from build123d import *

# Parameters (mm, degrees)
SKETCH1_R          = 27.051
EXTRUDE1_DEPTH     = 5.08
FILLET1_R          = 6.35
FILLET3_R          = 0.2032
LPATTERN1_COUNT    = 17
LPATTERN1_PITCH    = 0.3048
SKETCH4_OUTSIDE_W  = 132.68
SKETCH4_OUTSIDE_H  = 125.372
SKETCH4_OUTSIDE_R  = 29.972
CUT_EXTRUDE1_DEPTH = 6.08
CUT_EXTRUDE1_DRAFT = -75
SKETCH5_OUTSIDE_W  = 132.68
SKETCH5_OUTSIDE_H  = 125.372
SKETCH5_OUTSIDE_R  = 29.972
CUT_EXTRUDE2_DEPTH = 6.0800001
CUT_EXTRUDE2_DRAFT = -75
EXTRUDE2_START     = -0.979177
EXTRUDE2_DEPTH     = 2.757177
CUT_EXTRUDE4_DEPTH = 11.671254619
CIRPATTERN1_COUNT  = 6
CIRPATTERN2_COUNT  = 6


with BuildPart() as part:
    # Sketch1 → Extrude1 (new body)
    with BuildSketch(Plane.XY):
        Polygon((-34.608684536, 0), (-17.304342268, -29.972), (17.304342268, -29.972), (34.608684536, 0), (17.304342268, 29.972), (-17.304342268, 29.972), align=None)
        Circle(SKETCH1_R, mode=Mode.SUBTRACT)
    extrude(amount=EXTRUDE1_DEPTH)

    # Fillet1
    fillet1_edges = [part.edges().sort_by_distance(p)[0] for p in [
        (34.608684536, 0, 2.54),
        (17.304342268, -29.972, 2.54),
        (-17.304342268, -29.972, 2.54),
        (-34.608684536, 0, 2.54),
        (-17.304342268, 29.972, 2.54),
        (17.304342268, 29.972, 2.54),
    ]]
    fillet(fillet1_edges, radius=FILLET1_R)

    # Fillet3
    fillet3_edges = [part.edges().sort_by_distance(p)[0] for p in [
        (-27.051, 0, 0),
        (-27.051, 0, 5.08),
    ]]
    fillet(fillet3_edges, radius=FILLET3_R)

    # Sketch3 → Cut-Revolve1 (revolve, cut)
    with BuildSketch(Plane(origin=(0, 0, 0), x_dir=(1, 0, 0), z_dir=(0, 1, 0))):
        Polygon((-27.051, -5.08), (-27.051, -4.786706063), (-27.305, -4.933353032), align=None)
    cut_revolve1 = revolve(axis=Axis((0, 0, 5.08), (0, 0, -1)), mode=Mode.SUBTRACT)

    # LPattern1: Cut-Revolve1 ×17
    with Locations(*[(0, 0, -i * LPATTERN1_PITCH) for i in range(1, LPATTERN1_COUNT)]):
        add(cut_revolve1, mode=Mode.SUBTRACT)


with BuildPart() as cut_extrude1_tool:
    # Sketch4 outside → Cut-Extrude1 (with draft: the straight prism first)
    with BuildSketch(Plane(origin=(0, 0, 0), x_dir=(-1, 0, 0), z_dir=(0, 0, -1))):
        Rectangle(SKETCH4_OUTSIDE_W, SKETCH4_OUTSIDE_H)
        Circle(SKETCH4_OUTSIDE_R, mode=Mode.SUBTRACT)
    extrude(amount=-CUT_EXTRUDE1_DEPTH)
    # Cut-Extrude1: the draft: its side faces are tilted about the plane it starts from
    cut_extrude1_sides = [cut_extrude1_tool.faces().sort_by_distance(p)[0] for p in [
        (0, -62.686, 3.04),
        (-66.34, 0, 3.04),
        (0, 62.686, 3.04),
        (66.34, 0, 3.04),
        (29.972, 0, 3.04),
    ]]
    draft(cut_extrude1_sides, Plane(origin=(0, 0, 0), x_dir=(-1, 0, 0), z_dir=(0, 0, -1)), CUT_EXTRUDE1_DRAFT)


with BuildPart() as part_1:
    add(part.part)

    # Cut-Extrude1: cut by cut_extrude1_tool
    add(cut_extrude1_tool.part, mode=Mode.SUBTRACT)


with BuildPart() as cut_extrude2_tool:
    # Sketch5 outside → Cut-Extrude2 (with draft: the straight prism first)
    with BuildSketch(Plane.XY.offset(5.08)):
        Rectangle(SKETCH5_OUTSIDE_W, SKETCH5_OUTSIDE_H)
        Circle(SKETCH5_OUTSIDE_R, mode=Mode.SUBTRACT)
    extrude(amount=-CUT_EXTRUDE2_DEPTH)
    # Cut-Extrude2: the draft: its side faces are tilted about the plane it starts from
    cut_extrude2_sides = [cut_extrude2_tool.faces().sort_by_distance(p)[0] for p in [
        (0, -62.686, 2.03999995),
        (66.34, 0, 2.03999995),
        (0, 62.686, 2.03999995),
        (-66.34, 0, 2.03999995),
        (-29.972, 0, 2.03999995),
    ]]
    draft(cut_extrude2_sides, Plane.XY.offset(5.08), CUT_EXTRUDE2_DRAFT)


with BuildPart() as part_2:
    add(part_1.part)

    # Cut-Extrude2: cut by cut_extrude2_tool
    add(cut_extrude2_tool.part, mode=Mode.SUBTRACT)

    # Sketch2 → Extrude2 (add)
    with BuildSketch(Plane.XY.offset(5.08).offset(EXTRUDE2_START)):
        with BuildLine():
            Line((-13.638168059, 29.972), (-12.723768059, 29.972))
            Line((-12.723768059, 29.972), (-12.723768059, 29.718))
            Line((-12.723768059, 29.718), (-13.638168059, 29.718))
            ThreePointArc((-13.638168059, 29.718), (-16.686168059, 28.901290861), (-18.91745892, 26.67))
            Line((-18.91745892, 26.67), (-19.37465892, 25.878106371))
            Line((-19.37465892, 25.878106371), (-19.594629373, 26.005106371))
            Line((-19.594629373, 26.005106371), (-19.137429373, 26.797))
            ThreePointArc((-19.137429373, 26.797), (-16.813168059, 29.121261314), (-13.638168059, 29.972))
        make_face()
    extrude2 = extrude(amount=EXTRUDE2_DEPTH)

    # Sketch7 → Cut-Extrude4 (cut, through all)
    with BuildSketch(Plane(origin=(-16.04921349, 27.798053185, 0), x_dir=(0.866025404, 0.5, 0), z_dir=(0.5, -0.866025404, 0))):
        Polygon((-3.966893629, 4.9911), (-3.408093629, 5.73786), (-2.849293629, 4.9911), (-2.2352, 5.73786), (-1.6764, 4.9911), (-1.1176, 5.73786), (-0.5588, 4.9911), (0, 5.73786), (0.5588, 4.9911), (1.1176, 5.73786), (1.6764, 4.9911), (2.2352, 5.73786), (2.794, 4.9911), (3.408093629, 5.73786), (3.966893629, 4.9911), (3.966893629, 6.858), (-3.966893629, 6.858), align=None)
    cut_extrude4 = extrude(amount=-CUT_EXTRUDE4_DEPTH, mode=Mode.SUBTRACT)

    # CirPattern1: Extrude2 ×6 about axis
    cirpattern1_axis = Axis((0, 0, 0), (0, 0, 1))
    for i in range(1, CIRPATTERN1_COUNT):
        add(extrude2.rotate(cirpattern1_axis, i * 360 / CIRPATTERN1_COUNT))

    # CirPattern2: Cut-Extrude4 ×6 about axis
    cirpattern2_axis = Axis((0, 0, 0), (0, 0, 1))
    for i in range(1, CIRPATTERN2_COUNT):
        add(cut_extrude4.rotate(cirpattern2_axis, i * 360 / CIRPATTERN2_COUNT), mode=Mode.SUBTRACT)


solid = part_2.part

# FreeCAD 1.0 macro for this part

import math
import FreeCAD as App
import Part
import Sketcher
from FreeCAD import Vector
Q = App.Units.Quantity


def edges_at(feature, points):
    """Names of the edges that pass closest to the given points."""
    edges = feature.Shape.Edges
    near = lambda p: min(range(len(edges)), key=lambda i: edges[i].distToShape(Part.Vertex(*p))[0])
    return sorted({f"Edge{near(p) + 1}" for p in points})


def faces_at(feature, points):
    """Names of the faces that lie closest to the given points."""
    faces = feature.Shape.Faces
    near = lambda p: min(range(len(faces)), key=lambda i: faces[i].distToShape(Part.Vertex(*p))[0])
    return sorted({f"Face{near(p) + 1}" for p in points})


def add_polygon(sketch, points):
    """Adds a closed chain of lines whose ends are joined by coincident constraints."""
    first, n = sketch.GeometryCount, len(points)
    for a, b in zip(points, points[1:] + points[:1]):
        sketch.addGeometry(Part.LineSegment(App.Vector(*a, 0), App.Vector(*b, 0)), False)
    for i in range(n):
        sketch.addConstraint(Sketcher.Constraint("Coincident", first + i, 2, first + (i + 1) % n, 1))

doc = App.newDocument("Part")
body = doc.addObject("PartDesign::Body", "Body")

sketch1 = body.newObject("Sketcher::SketchObject", "Sketch")
sketch1.AttachmentSupport = (doc.getObject("XY_Plane"), [""])
sketch1.MapMode = "FlatFace"
add_polygon(sketch1, [(-35, 0), (-17, -30), (17, -30), (35, 0), (17, 30), (-17, 30)])
sketch1.addGeometry(Part.Circle(Vector(0, 0, 0), Vector(0, 0, 1), 27), False)
sketch1.addConstraint(Sketcher.Constraint("Horizontal", 1))
sketch1.addConstraint(Sketcher.Constraint("Horizontal", 4))
sketch1.addConstraint(Sketcher.Constraint("Coincident", 6, 3, -1, 1))
sketch1.addConstraint(Sketcher.Constraint("Symmetric", 0, 2, 3, 2, -1, 1))
sketch1.addConstraint(Sketcher.Constraint("Symmetric", 2, 2, 5, 2, -1, 1))
sketch1.addConstraint(Sketcher.Constraint("PointOnObject", 2, 2, -1))
sketch1.addConstraint(Sketcher.Constraint("Parallel", 2, 5))
sketch1.addConstraint(Sketcher.Constraint("Vertical", 1, 2, 3, 2))
sketch1.addConstraint(Sketcher.Constraint("Diameter", 6, Q("2.13 in")))
sketch1.addConstraint(Sketcher.Constraint("Angle", 0, Q("-60 deg")))
sketch1.addConstraint(Sketcher.Constraint("DistanceY", 0, 2, -1, 1, Q("1.18 in")))
sketch1.addConstraint(Sketcher.Constraint("DistanceX", 1, 1, 1, 2, Q("34.608685 mm")))
pad1 = body.newObject("PartDesign::Pad", "Pad")
pad1.Profile = sketch1
pad1.Length = Q("0.2 in")
doc.recompute()

fillet = body.newObject("PartDesign::Fillet", "Fillet")
fillet.Base = (pad1, edges_at(pad1, [
    (34.609, 0, 2.54),
    (17.304, -29.972, 2.54),
    (-17.304, -29.972, 2.54),
    (-34.609, 0, 2.54),
    (-17.304, 29.972, 2.54),
    (17.304, 29.972, 2.54),
]))
fillet.Radius = Q("0.25 in")
doc.recompute()

fillet2 = body.newObject("PartDesign::Fillet", "Fillet001")
fillet2.Base = (fillet, edges_at(fillet, [(-27.051, 0, 0), (-27.051, 0, 5.08)]))
fillet2.Radius = Q("0.008 in")

sketch2 = body.newObject("Sketcher::SketchObject", "Sketch001")
sketch2.AttachmentSupport = (doc.getObject("XZ_Plane"), [""])
sketch2.MapMode = "FlatFace"
add_polygon(sketch2, [(-27.05, 5.08), (-27.05, 4.79), (-27.3, 4.93)])
sketch2.addConstraint(Sketcher.Constraint("Vertical", 0))
sketch2.addConstraint(Sketcher.Constraint("Equal", 1, 2))
sketch2.addConstraint(Sketcher.Constraint("Angle", 1, Q("150 deg")))
sketch2.addConstraint(Sketcher.Constraint("DistanceY", -1, 1, 2, 2, Q("0.2 in")))
sketch2.addConstraint(Sketcher.Constraint("DistanceX", 1, 2, 0, 2, Q("0.01 in")))
sketch2.addConstraint(Sketcher.Constraint("DistanceX", 0, 2, -1, 1, Q("1.065 in")))
groove = body.newObject("PartDesign::Groove", "Groove")
groove.Profile = sketch2
groove.ReferenceAxis = (sketch2, ["V_Axis"])
groove.Angle = 360
doc.recompute()

linearpattern = body.newObject("PartDesign::LinearPattern", "LinearPattern")
linearpattern.Originals = [groove]
linearpattern.Direction = (doc.getObject("Z_Axis"), [""])
linearpattern.Mode = "offset"
linearpattern.Offset = Q("0.012 in")
linearpattern.Occurrences = 17
linearpattern.Reversed = True
body.Tip = linearpattern
body2 = doc.addObject("PartDesign::Body", "Body001")

sketch3 = body2.newObject("Sketcher::SketchObject", "Sketch002")
sketch3.AttachmentSupport = (doc.getObject("XY_Plane001"), [""])
sketch3.MapMode = "FlatFace"
add_polygon(sketch3, [(66, 63), (66, -63), (-66, -63), (-66, 63)])
sketch3.addGeometry(Part.Circle(Vector(0, 0, 0), Vector(0, 0, 1), 30), False)
sketch3.addConstraint(Sketcher.Constraint("Vertical", 0))
sketch3.addConstraint(Sketcher.Constraint("Horizontal", 1))
sketch3.addConstraint(Sketcher.Constraint("Vertical", 2))
sketch3.addConstraint(Sketcher.Constraint("Horizontal", 3))
sketch3.addConstraint(Sketcher.Constraint("Coincident", 4, 3, -1, 1))
sketch3.addConstraint(Sketcher.Constraint("Symmetric", 0, 2, 2, 2, -1, 1))
sketch3.addConstraint(Sketcher.Constraint("Diameter", 4, Q("2.36 in")))
sketch3.addConstraint(Sketcher.Constraint("DistanceX", 1, 2, 1, 1, Q("132.68 mm")))
sketch3.addConstraint(Sketcher.Constraint("DistanceY", 0, 2, 0, 1, Q("125.372 mm")))
pad2 = body2.newObject("PartDesign::Pad", "Pad001")
pad2.Profile = sketch3
pad2.Length = 6.08
doc.recompute()

draft = body2.newObject("PartDesign::Draft", "Draft")
draft.Base = (pad2, faces_at(pad2, [
    (0, -62.686, 3.04),
    (-66.34, 0, 3.04),
    (0, 62.686, 3.04),
    (66.34, 0, 3.04),
    (29.972, 0, 3.04),
]))
draft.NeutralPlane = (doc.getObject("XY_Plane001"), [""])
draft.Angle = 75
draft.Reversed = False
doc.recompute()

boolean = body.newObject("PartDesign::Boolean", "Boolean")
boolean.Type = "Cut"
boolean.addObjects([body2])
body3 = doc.addObject("PartDesign::Body", "Body002")

sketch4 = body3.newObject("Sketcher::SketchObject", "Sketch003")
sketch4.AttachmentSupport = (doc.getObject("XY_Plane002"), [""])
sketch4.MapMode = "FlatFace"
sketch4.AttachmentOffset = App.Placement(Vector(0, 0, 0.2 * 25.4), App.Rotation())
add_polygon(sketch4, [(-66, 63), (-66, -63), (66, -63), (66, 63)])
sketch4.addGeometry(Part.Circle(Vector(0, 0, 0), Vector(0, 0, 1), 30), False)
sketch4.addConstraint(Sketcher.Constraint("Vertical", 0))
sketch4.addConstraint(Sketcher.Constraint("Horizontal", 1))
sketch4.addConstraint(Sketcher.Constraint("Vertical", 2))
sketch4.addConstraint(Sketcher.Constraint("Horizontal", 3))
sketch4.addConstraint(Sketcher.Constraint("Coincident", 4, 3, -1, 1))
sketch4.addConstraint(Sketcher.Constraint("Symmetric", 0, 2, 2, 2, -1, 1))
sketch4.addConstraint(Sketcher.Constraint("Diameter", 4, Q("2.36 in")))
sketch4.addConstraint(Sketcher.Constraint("DistanceX", 1, 1, 1, 2, Q("132.68 mm")))
sketch4.addConstraint(Sketcher.Constraint("DistanceY", 0, 2, 0, 1, Q("125.372 mm")))
pad3 = body3.newObject("PartDesign::Pad", "Pad002")
pad3.Profile = sketch4
pad3.Length = 6.08
pad3.Reversed = True
doc.recompute()

datumplane = body3.newObject("PartDesign::Plane", "DatumPlane")
datumplane.AttachmentSupport = (doc.getObject("XY_Plane002"), [""])
datumplane.MapMode = "FlatFace"
datumplane.AttachmentOffset = App.Placement(Vector(0, 0, 0.2 * 25.4), App.Rotation())
draft2 = body3.newObject("PartDesign::Draft", "Draft001")
draft2.Base = (pad3, faces_at(pad3, [
    (0, -62.686, 2.04),
    (66.34, 0, 2.04),
    (0, 62.686, 2.04),
    (-66.34, 0, 2.04),
    (-29.972, 0, 2.04),
]))
draft2.NeutralPlane = (datumplane, [""])
draft2.Angle = 75
draft2.Reversed = True
doc.recompute()

boolean2 = body.newObject("PartDesign::Boolean", "Boolean001")
boolean2.Type = "Cut"
boolean2.addObjects([body3])

sketch5 = body.newObject("Sketcher::SketchObject", "Sketch004")
sketch5.AttachmentSupport = (doc.getObject("XY_Plane"), [""])
sketch5.MapMode = "FlatFace"
sketch5.AttachmentOffset = App.Placement(Vector(0, 0, 4.100823), App.Rotation())
sketch5.addGeometry(Part.LineSegment(Vector(-12.72, 29.97, 0), Vector(-13.64, 29.97, 0)), False)
sketch5.addGeometry(Part.ArcOfCircle(Part.Circle(Vector(-13.64, 23.62, 0), Vector(0, 0, 1), 6.35), math.radians(90), math.radians(150)), False)
sketch5.addGeometry(Part.LineSegment(Vector(-19.14, 26.8, 0), Vector(-19.59, 26.01, 0)), False)
sketch5.addGeometry(Part.LineSegment(Vector(-19.59, 26.01, 0), Vector(-19.37, 25.88, 0)), False)
sketch5.addGeometry(Part.LineSegment(Vector(-19.37, 25.88, 0), Vector(-18.92, 26.67, 0)), False)
sketch5.addGeometry(Part.ArcOfCircle(Part.Circle(Vector(-13.64, 23.62, 0), Vector(0, 0, 1), 6.1), math.radians(90), math.radians(150)), False)
sketch5.addGeometry(Part.LineSegment(Vector(-13.64, 29.72, 0), Vector(-12.72, 29.72, 0)), False)
sketch5.addGeometry(Part.LineSegment(Vector(-12.72, 29.72, 0), Vector(-12.72, 29.97, 0)), False)
sketch5.addConstraint(Sketcher.Constraint("Tangent", 0, 2, 1, 1))
sketch5.addConstraint(Sketcher.Constraint("Tangent", 1, 2, 2, 1))
sketch5.addConstraint(Sketcher.Constraint("Coincident", 2, 2, 3, 1))
sketch5.addConstraint(Sketcher.Constraint("Coincident", 3, 2, 4, 1))
sketch5.addConstraint(Sketcher.Constraint("Tangent", 4, 2, 5, 2))
sketch5.addConstraint(Sketcher.Constraint("Tangent", 5, 1, 6, 1))
sketch5.addConstraint(Sketcher.Constraint("Coincident", 6, 2, 7, 1))
sketch5.addConstraint(Sketcher.Constraint("Coincident", 7, 2, 0, 1))
sketch5.addConstraint(Sketcher.Constraint("Horizontal", 0))
sketch5.addConstraint(Sketcher.Constraint("Horizontal", 6))
sketch5.addConstraint(Sketcher.Constraint("Vertical", 7))
sketch5.addConstraint(Sketcher.Constraint("Coincident", 5, 3, 1, 3))
sketch5.addConstraint(Sketcher.Constraint("Perpendicular", 2, 3))
sketch5.addConstraint(Sketcher.Constraint("Perpendicular", 3, 4))
sketch5.addConstraint(Sketcher.Constraint("Radius", 1, Q("0.25 in")))
sketch5.addConstraint(Sketcher.Constraint("Radius", 5, Q("0.24 in")))
sketch5.addConstraint(Sketcher.Constraint("Angle", 2, Q("-120 deg")))
sketch5.addConstraint(Sketcher.Constraint("DistanceX", 0, 2, 0, 1, Q("0.036 in")))
sketch5.addConstraint(Sketcher.Constraint("DistanceY", -1, 1, 1, 3, Q("0.93 in")))
sketch5.addConstraint(Sketcher.Constraint("Distance", 2, Q("0.036 in")))
sketch5.addConstraint(Sketcher.Constraint("DistanceX", 1, 3, -1, 1, Q("13.638168 mm")))
pad4 = body.newObject("PartDesign::Pad", "Pad003")
pad4.Profile = sketch5
pad4.Length = 2.757177

sketch6 = body.newObject("Sketcher::SketchObject", "Sketch005")
sketch6.Placement = App.Placement(Vector(-16.049213, 27.798053, 0), App.Rotation(Vector(0.866025404, 0.5, 0), Vector(0, 0, 1), Vector(0.5, -0.866025404, 0), "ZXY"))
add_polygon(sketch6, [(-4, 5), (-3.4, 5.7), (-2.8, 5), (-2.2, 5.7), (-1.7, 5), (-1.1, 5.7), (-0.6, 5), (0, 5.7), (0.6, 5), (1.1, 5.7), (1.7, 5), (2.2, 5.7), (2.8, 5), (3.4, 5.7), (4, 5), (4, 6.9), (-4, 6.9)])
sketch6.addConstraint(Sketcher.Constraint("Vertical", 14))
sketch6.addConstraint(Sketcher.Constraint("Horizontal", 15))
sketch6.addConstraint(Sketcher.Constraint("Vertical", 16))
sketch6.addConstraint(Sketcher.Constraint("Symmetric", 5, 2, 7, 2, -2))
sketch6.addConstraint(Sketcher.Constraint("Symmetric", 4, 2, 8, 2, -2))
sketch6.addConstraint(Sketcher.Constraint("Symmetric", 3, 2, 9, 2, -2))
sketch6.addConstraint(Sketcher.Constraint("Symmetric", 2, 2, 10, 2, -2))
sketch6.addConstraint(Sketcher.Constraint("Symmetric", 0, 2, 12, 2, -2))
sketch6.addConstraint(Sketcher.Constraint("Symmetric", 13, 2, 16, 2, -2))
sketch6.addConstraint(Sketcher.Constraint("PointOnObject", 6, 2, -2))
sketch6.addConstraint(Sketcher.Constraint("Parallel", 1, 3))
sketch6.addConstraint(Sketcher.Constraint("Parallel", 0, 4))
sketch6.addConstraint(Sketcher.Constraint("Parallel", 3, 5))
sketch6.addConstraint(Sketcher.Constraint("Parallel", 4, 6))
sketch6.addConstraint(Sketcher.Constraint("Parallel", 5, 7))
sketch6.addConstraint(Sketcher.Constraint("Parallel", 9, 11))
sketch6.addConstraint(Sketcher.Constraint("Parallel", 2, 12))
sketch6.addConstraint(Sketcher.Constraint("Horizontal", 0, 2, 2, 2))
sketch6.addConstraint(Sketcher.Constraint("Horizontal", 1, 2, 3, 2))
sketch6.addConstraint(Sketcher.Constraint("Horizontal", 2, 2, 4, 2))
sketch6.addConstraint(Sketcher.Constraint("Horizontal", 3, 2, 5, 2))
sketch6.addConstraint(Sketcher.Constraint("Horizontal", 4, 2, 6, 2))
sketch6.addConstraint(Sketcher.Constraint("Horizontal", 11, 2, 13, 2))
sketch6.addConstraint(Sketcher.Constraint("DistanceX", -1, 1, 11, 2, Q("0.11 in")))
sketch6.addConstraint(Sketcher.Constraint("DistanceY", -1, 1, 14, 2, Q("0.27 in")))
sketch6.addConstraint(Sketcher.Constraint("DistanceY", 14, 1, 14, 2, Q("0.0735 in")))
sketch6.addConstraint(Sketcher.Constraint("DistanceY", -1, 1, 0, 2, Q("0.2259 in")))
sketch6.addConstraint(Sketcher.Constraint("Distance", 2, Q("0.966831 mm")))
pocket1 = body.newObject("PartDesign::Pocket", "Pocket")
pocket1.Profile = sketch6
pocket1.Type = "ThroughAll"
doc.recompute()

polarpattern = body.newObject("PartDesign::PolarPattern", "PolarPattern")
polarpattern.Originals = [pad4]
polarpattern.Axis = (doc.getObject("Z_Axis"), [""])
polarpattern.Angle = 360
polarpattern.Occurrences = 6
body.Tip = polarpattern
doc.recompute()

polarpattern2 = body.newObject("PartDesign::PolarPattern", "PolarPattern001")
polarpattern2.Originals = [pocket1]
polarpattern2.Axis = (doc.getObject("Z_Axis"), [""])
polarpattern2.Angle = 360
polarpattern2.Occurrences = 6
body.Tip = polarpattern2

doc.recompute()
